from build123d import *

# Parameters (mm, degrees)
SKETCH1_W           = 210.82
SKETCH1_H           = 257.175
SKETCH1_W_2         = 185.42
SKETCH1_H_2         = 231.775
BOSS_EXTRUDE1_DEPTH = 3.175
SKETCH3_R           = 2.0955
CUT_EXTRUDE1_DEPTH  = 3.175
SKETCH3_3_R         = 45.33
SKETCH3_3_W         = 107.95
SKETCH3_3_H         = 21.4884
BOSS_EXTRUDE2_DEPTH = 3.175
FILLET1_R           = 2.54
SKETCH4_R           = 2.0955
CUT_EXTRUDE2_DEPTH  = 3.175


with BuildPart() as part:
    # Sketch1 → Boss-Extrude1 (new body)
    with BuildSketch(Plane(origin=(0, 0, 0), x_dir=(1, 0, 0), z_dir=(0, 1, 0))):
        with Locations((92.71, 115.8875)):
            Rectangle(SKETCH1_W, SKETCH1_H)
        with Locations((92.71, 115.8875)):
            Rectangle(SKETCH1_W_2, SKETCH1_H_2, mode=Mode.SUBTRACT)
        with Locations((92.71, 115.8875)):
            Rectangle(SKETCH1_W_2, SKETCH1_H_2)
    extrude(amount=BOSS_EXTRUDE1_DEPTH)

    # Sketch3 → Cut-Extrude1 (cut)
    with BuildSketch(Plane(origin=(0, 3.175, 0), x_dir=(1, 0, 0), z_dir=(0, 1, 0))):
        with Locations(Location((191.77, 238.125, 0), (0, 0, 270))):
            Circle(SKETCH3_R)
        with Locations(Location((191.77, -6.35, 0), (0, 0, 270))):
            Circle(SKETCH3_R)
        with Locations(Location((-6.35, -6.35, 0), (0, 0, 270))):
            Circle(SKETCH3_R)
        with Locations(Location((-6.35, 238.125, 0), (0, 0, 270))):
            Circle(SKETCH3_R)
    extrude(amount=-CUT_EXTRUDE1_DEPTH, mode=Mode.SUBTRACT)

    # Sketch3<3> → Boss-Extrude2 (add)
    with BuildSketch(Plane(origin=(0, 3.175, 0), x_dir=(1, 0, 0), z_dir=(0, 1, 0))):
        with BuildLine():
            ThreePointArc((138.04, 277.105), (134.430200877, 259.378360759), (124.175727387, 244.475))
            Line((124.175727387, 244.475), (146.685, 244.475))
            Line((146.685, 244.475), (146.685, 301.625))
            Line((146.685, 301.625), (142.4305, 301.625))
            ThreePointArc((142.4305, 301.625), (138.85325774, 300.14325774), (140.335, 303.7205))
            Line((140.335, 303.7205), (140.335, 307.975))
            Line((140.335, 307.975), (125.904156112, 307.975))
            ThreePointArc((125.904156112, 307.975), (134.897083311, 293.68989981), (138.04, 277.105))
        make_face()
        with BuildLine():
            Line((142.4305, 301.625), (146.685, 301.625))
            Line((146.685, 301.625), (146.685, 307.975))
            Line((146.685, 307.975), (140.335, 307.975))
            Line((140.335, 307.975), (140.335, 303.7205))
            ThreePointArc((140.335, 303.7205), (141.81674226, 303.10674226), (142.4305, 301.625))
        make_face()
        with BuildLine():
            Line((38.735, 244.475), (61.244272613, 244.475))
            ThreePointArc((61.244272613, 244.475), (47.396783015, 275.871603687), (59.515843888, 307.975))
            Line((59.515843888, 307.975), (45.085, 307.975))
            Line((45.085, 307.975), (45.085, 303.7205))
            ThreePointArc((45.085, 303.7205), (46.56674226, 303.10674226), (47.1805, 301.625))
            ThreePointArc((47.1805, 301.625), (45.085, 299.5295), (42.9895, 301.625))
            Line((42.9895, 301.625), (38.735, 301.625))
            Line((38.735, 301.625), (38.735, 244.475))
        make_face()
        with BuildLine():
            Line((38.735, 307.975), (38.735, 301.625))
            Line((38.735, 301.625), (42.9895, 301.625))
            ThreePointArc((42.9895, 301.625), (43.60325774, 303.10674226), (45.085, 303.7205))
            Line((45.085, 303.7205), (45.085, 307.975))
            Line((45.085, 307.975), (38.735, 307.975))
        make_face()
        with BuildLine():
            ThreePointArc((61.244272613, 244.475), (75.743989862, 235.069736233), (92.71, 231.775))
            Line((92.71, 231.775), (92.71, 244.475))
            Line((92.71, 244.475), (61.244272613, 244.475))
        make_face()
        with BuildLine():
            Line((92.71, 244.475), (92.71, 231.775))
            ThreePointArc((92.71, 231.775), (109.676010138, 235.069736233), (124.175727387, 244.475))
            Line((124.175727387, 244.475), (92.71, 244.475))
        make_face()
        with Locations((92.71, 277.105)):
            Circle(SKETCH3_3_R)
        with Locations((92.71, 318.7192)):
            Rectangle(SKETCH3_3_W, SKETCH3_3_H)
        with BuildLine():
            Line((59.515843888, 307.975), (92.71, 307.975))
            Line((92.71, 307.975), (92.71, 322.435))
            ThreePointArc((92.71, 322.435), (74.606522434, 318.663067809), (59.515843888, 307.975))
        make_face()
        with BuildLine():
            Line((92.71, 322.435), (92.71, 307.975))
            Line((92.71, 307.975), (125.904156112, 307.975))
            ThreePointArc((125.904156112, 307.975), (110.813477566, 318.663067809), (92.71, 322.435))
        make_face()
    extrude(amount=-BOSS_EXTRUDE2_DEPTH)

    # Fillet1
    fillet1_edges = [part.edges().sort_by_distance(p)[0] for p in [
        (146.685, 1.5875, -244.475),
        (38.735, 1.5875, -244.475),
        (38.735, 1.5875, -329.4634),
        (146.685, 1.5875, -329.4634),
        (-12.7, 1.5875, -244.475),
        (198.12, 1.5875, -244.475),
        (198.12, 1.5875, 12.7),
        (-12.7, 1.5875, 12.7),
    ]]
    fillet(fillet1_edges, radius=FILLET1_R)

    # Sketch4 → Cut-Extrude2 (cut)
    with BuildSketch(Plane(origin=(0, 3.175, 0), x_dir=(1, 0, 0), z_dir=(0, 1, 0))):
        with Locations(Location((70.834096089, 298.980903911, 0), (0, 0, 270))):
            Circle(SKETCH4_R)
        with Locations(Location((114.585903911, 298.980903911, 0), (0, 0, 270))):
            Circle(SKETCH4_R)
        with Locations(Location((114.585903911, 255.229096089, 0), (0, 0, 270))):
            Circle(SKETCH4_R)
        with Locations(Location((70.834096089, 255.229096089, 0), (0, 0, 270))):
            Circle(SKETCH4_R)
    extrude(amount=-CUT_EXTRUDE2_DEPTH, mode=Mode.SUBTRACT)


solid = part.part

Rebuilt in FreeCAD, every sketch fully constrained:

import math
import FreeCAD as App
import Part
import Sketcher
Q = App.Units.Quantity


def edges_at(feature, points):
    """Names of the edges that pass closest to the given points."""
    edges = feature.Shape.Edges
    near = lambda p: min(range(len(edges)), key=lambda i: edges[i].distToShape(Part.Vertex(*p))[0])
    return sorted({f"Edge{near(p) + 1}" for p in points})

doc = App.newDocument("Part")
body = doc.addObject("PartDesign::Body", "Body")

# Sketch on XZ plane
sketch1 = doc.addObject("Sketcher::SketchObject", "Sketch")
body.addObject(sketch1)
sketch1.AttachmentSupport = (doc.XZ_Plane, [""])
sketch1.MapMode = "FlatFace"
sketch1.addGeometry(Part.LineSegment(App.Vector(-12.7, -244.475, 0), App.Vector(-12.7, 12.7, 0)), False)
sketch1.addGeometry(Part.LineSegment(App.Vector(-12.7, 12.7, 0), App.Vector(198.12, 12.7, 0)), False)
sketch1.addGeometry(Part.LineSegment(App.Vector(198.12, 12.7, 0), App.Vector(198.12, -244.475, 0)), False)
sketch1.addGeometry(Part.LineSegment(App.Vector(198.12, -244.475, 0), App.Vector(-12.7, -244.475, 0)), False)
sketch1.addConstraint(Sketcher.Constraint("Coincident", 0, 2, 1, 1))
sketch1.addConstraint(Sketcher.Constraint("Coincident", 1, 2, 2, 1))
sketch1.addConstraint(Sketcher.Constraint("Coincident", 2, 2, 3, 1))
sketch1.addConstraint(Sketcher.Constraint("Coincident", 3, 2, 0, 1))
sketch1.addConstraint(Sketcher.Constraint("Vertical", 0))
sketch1.addConstraint(Sketcher.Constraint("Horizontal", 1))
sketch1.addConstraint(Sketcher.Constraint("Vertical", 2))
sketch1.addConstraint(Sketcher.Constraint("Horizontal", 3))
sketch1.addConstraint(Sketcher.Constraint("DistanceX", 1, 1, 1, 2, Q("8.3 in")))
sketch1.addConstraint(Sketcher.Constraint("DistanceX", 0, 2, -1, 1, Q("0.5 in")))
sketch1.addConstraint(Sketcher.Constraint("DistanceY", -1, 1, 0, 2, Q("0.5 in")))
sketch1.addConstraint(Sketcher.Constraint("DistanceY", 0, 1, 0, 2, Q("10.125 in")))
pad1 = doc.addObject("PartDesign::Pad", "Pad")
body.addObject(pad1)
pad1.Profile = sketch1
pad1.Length = Q("0.125 in")
pad1.Reversed = True

# Sketch on XZ plane
sketch2 = doc.addObject("Sketcher::SketchObject", "Sketch001")
body.addObject(sketch2)
sketch2.AttachmentSupport = (doc.XZ_Plane, [""])
sketch2.MapMode = "FlatFace"
sketch2.AttachmentOffset = App.Placement(App.Vector(0, 0, -0.125 * 25.4), App.Rotation())
sketch2.addGeometry(Part.Circle(App.Vector(191.77, -238.125, 0), App.Vector(0, 0, 1), 2.0955), False)
sketch2.addGeometry(Part.Circle(App.Vector(191.77, 6.35, 0), App.Vector(0, 0, 1), 2.0955), False)
sketch2.addGeometry(Part.Circle(App.Vector(-6.35, 6.35, 0), App.Vector(0, 0, 1), 2.0955), False)
sketch2.addGeometry(Part.Circle(App.Vector(-6.35, -238.125, 0), App.Vector(0, 0, 1), 2.0955), False)
sketch2.addConstraint(Sketcher.Constraint("Equal", 0, 1))
sketch2.addConstraint(Sketcher.Constraint("Equal", 1, 2))
sketch2.addConstraint(Sketcher.Constraint("Equal", 2, 3))
sketch2.addConstraint(Sketcher.Constraint("Horizontal", 1, 3, 2, 3))
sketch2.addConstraint(Sketcher.Constraint("Horizontal", 0, 3, 3, 3))
sketch2.addConstraint(Sketcher.Constraint("Vertical", 0, 3, 1, 3))
sketch2.addConstraint(Sketcher.Constraint("Vertical", 2, 3, 3, 3))
sketch2.addConstraint(Sketcher.Constraint("Diameter", 0, Q("0.165 in")))
sketch2.addConstraint(Sketcher.Constraint("DistanceX", 2, 3, 1, 3, Q("7.8 in")))
sketch2.addConstraint(Sketcher.Constraint("DistanceX", -1, 1, 0, 3, Q("7.55 in")))
sketch2.addConstraint(Sketcher.Constraint("DistanceY", -1, 1, 1, 3, Q("0.25 in")))
sketch2.addConstraint(Sketcher.Constraint("DistanceY", 0, 3, -1, 1, Q("9.375 in")))
pocket1 = doc.addObject("PartDesign::Pocket", "Pocket")
body.addObject(pocket1)
pocket1.Profile = sketch2
pocket1.Length = Q("0.125 in")
pocket1.Reversed = True

# Sketch on XZ plane
sketch3 = doc.addObject("Sketcher::SketchObject", "Sketch002")
body.addObject(sketch3)
sketch3.AttachmentSupport = (doc.XZ_Plane, [""])
sketch3.MapMode = "FlatFace"
sketch3.AttachmentOffset = App.Placement(App.Vector(0, 0, -0.125 * 25.4), App.Rotation())
sketch3.addGeometry(Part.ArcOfCircle(Part.Circle(App.Vector(92.71, -277.105, 0), App.Vector(0, 0, 1), 45.33), math.radians(46.04064), math.radians(90)), False)
sketch3.addGeometry(Part.LineSegment(App.Vector(124.175727, -244.475, 0), App.Vector(146.685, -244.475, 0)), False)
sketch3.addGeometry(Part.LineSegment(App.Vector(146.685, -244.475, 0), App.Vector(146.685, -329.4634, 0)), False)
sketch3.addGeometry(Part.LineSegment(App.Vector(146.685, -329.4634, 0), App.Vector(38.735, -329.4634, 0)), False)
sketch3.addGeometry(Part.LineSegment(App.Vector(38.735, -329.4634, 0), App.Vector(38.735, -244.475, 0)), False)
sketch3.addGeometry(Part.LineSegment(App.Vector(38.735, -244.475, 0), App.Vector(61.244273, -244.475, 0)), False)
sketch3.addGeometry(Part.ArcOfCircle(Part.Circle(App.Vector(92.71, -277.105, 0), App.Vector(0, 0, 1), 45.33), math.radians(90), math.radians(133.95936)), False)
sketch3.addGeometry(Part.ArcOfCircle(Part.Circle(App.Vector(45.085, -301.625, 0), App.Vector(0, 0, 1), 2.0955), math.radians(180), math.radians(270)), False)
sketch3.addGeometry(Part.ArcOfCircle(Part.Circle(App.Vector(45.085, -301.625, 0), App.Vector(0, 0, 1), 2.0955), math.radians(-90), math.radians(0)), False)
sketch3.addGeometry(Part.ArcOfCircle(Part.Circle(App.Vector(45.085, -301.625, 0), App.Vector(0, 0, 1), 2.0955), math.radians(0), math.radians(180)), False)
sketch3.addGeometry(Part.ArcOfCircle(Part.Circle(App.Vector(140.335, -301.625, 0), App.Vector(0, 0, 1), 2.0955), math.radians(0), math.radians(270)), False)
sketch3.addGeometry(Part.ArcOfCircle(Part.Circle(App.Vector(140.335, -301.625, 0), App.Vector(0, 0, 1), 2.0955), math.radians(-90), math.radians(0)), False)
sketch3.addConstraint(Sketcher.Constraint("Coincident", 0, 1, 1, 1))
sketch3.addConstraint(Sketcher.Constraint("Coincident", 1, 2, 2, 1))
sketch3.addConstraint(Sketcher.Constraint("Coincident", 2, 2, 3, 1))
sketch3.addConstraint(Sketcher.Constraint("Coincident", 3, 2, 4, 1))
sketch3.addConstraint(Sketcher.Constraint("Coincident", 4, 2, 5, 1))
sketch3.addConstraint(Sketcher.Constraint("Coincident", 5, 2, 6, 2))
sketch3.addConstraint(Sketcher.Constraint("Tangent", 6, 1, 0, 2))
sketch3.addConstraint(Sketcher.Constraint("Tangent", 7, 2, 8, 1))
sketch3.addConstraint(Sketcher.Constraint("Tangent", 8, 2, 9, 1))
sketch3.addConstraint(Sketcher.Constraint("Tangent", 9, 2, 7, 1))
sketch3.addConstraint(Sketcher.Constraint("Tangent", 10, 1, 11, 2))
sketch3.addConstraint(Sketcher.Constraint("Coincident", 11, 1, 10, 2))
sketch3.addConstraint(Sketcher.Constraint("Horizontal", 1))
sketch3.addConstraint(Sketcher.Constraint("Vertical", 2))
sketch3.addConstraint(Sketcher.Constraint("Horizontal", 3))
sketch3.addConstraint(Sketcher.Constraint("Vertical", 4))
sketch3.addConstraint(Sketcher.Constraint("Horizontal", 5))
sketch3.addConstraint(Sketcher.Constraint("Equal", 0, 6))
sketch3.addConstraint(Sketcher.Constraint("Equal", 9, 10))
sketch3.addConstraint(Sketcher.Constraint("Horizontal", 9, 3, 10, 3))
sketch3.addConstraint(Sketcher.Constraint("Horizontal", 1, 2, 4, 2))
sketch3.addConstraint(Sketcher.Constraint("Horizontal", 11, 3, 8, 2))
sketch3.addConstraint(Sketcher.Constraint("Horizontal", 8, 2, 9, 2))
sketch3.addConstraint(Sketcher.Constraint("Horizontal", 9, 2, 10, 1))
sketch3.addConstraint(Sketcher.Constraint("Vertical", 0, 3, 6, 1))
sketch3.addConstraint(Sketcher.Constraint("Vertical", 9, 3, 7, 2))
sketch3.addConstraint(Sketcher.Constraint("Vertical", 10, 3, 11, 1))
sketch3.addConstraint(Sketcher.Constraint("Equal", 1, 5))
sketch3.addConstraint(Sketcher.Constraint("DistanceX", 3, 2, 3, 1, Q("4.25 in")))
sketch3.addConstraint(Sketcher.Constraint("Radius", 7, Q("0.0825 in")))
sketch3.addConstraint(Sketcher.Constraint("DistanceY", 5, 2, 6, 1, Q("0.5 in")))
sketch3.addConstraint(Sketcher.Constraint("DistanceY", 2, 2, 2, 1, Q("3.346 in")))
sketch3.addConstraint(Sketcher.Constraint("DistanceX", -1, 1, 0, 3, Q("3.65 in")))
sketch3.addConstraint(Sketcher.Constraint("Radius", 0, Q("45.33 mm")))
sketch3.addConstraint(Sketcher.Constraint("DistanceX", 7, 3, 10, 3, Q("3.75 in")))
sketch3.addConstraint(Sketcher.Constraint("DistanceY", 10, 3, 0, 1, Q("2.25 in")))
sketch3.addConstraint(Sketcher.Constraint("DistanceX", 10, 3, 1, 2, Q("0.25 in")))
sketch3.addConstraint(Sketcher.Constraint("DistanceY", 7, 3, -1, 1, Q("11.875 in")))
pad2 = doc.addObject("PartDesign::Pad", "Pad001")
body.addObject(pad2)
pad2.Profile = sketch3
pad2.Length = Q("0.125 in")
doc.recompute()

fillet = doc.addObject("PartDesign::Fillet", "Fillet")
body.addObject(fillet)
fillet.Base = (pad2, edges_at(pad2, [
    (146.685, 1.587, -244.475),
    (38.735, 1.587, -244.475),
    (38.735, 1.587, -329.463),
    (146.685, 1.587, -329.463),
    (-12.7, 1.587, -244.475),
    (198.12, 1.587, -244.475),
    (198.12, 1.587, 12.7),
    (-12.7, 1.587, 12.7),
]))
fillet.Radius = Q("0.1 in")

# Sketch on XZ plane
sketch4 = doc.addObject("Sketcher::SketchObject", "Sketch003")
body.addObject(sketch4)
sketch4.AttachmentSupport = (doc.XZ_Plane, [""])
sketch4.MapMode = "FlatFace"
sketch4.AttachmentOffset = App.Placement(App.Vector(0, 0, -0.125 * 25.4), App.Rotation())
sketch4.addGeometry(Part.Circle(App.Vector(70.834096, -298.980904, 0), App.Vector(0, 0, 1), 2.0955), False)
sketch4.addGeometry(Part.Circle(App.Vector(114.585904, -298.980904, 0), App.Vector(0, 0, 1), 2.0955), False)
sketch4.addGeometry(Part.Circle(App.Vector(114.585904, -255.229096, 0), App.Vector(0, 0, 1), 2.0955), False)
sketch4.addGeometry(Part.Circle(App.Vector(70.834096, -255.229096, 0), App.Vector(0, 0, 1), 2.0955), False)
sketch4.addConstraint(Sketcher.Constraint("Equal", 0, 1))
sketch4.addConstraint(Sketcher.Constraint("Equal", 1, 2))
sketch4.addConstraint(Sketcher.Constraint("Equal", 2, 3))
sketch4.addConstraint(Sketcher.Constraint("Horizontal", 0, 3, 1, 3))
sketch4.addConstraint(Sketcher.Constraint("Horizontal", 2, 3, 3, 3))
sketch4.addConstraint(Sketcher.Constraint("Vertical", 1, 3, 2, 3))
sketch4.addConstraint(Sketcher.Constraint("Vertical", 0, 3, 3, 3))
sketch4.addConstraint(Sketcher.Constraint("Diameter", 0, Q("0.165 in")))
sketch4.addConstraint(Sketcher.Constraint("DistanceX", -1, 1, 0, 3, Q("70.834096 mm")))
sketch4.addConstraint(Sketcher.Constraint("DistanceY", 0, 3, -1, 1, Q("298.980904 mm")))
sketch4.addConstraint(Sketcher.Constraint("DistanceX", -1, 1, 1, 3, Q("114.585904 mm")))
sketch4.addConstraint(Sketcher.Constraint("DistanceY", 2, 3, -1, 1, Q("255.229096 mm")))
pocket2 = doc.addObject("PartDesign::Pocket", "Pocket001")
body.addObject(pocket2)
pocket2.Profile = sketch4
pocket2.Length = Q("0.125 in")
pocket2.Reversed = True

doc.recompute()
